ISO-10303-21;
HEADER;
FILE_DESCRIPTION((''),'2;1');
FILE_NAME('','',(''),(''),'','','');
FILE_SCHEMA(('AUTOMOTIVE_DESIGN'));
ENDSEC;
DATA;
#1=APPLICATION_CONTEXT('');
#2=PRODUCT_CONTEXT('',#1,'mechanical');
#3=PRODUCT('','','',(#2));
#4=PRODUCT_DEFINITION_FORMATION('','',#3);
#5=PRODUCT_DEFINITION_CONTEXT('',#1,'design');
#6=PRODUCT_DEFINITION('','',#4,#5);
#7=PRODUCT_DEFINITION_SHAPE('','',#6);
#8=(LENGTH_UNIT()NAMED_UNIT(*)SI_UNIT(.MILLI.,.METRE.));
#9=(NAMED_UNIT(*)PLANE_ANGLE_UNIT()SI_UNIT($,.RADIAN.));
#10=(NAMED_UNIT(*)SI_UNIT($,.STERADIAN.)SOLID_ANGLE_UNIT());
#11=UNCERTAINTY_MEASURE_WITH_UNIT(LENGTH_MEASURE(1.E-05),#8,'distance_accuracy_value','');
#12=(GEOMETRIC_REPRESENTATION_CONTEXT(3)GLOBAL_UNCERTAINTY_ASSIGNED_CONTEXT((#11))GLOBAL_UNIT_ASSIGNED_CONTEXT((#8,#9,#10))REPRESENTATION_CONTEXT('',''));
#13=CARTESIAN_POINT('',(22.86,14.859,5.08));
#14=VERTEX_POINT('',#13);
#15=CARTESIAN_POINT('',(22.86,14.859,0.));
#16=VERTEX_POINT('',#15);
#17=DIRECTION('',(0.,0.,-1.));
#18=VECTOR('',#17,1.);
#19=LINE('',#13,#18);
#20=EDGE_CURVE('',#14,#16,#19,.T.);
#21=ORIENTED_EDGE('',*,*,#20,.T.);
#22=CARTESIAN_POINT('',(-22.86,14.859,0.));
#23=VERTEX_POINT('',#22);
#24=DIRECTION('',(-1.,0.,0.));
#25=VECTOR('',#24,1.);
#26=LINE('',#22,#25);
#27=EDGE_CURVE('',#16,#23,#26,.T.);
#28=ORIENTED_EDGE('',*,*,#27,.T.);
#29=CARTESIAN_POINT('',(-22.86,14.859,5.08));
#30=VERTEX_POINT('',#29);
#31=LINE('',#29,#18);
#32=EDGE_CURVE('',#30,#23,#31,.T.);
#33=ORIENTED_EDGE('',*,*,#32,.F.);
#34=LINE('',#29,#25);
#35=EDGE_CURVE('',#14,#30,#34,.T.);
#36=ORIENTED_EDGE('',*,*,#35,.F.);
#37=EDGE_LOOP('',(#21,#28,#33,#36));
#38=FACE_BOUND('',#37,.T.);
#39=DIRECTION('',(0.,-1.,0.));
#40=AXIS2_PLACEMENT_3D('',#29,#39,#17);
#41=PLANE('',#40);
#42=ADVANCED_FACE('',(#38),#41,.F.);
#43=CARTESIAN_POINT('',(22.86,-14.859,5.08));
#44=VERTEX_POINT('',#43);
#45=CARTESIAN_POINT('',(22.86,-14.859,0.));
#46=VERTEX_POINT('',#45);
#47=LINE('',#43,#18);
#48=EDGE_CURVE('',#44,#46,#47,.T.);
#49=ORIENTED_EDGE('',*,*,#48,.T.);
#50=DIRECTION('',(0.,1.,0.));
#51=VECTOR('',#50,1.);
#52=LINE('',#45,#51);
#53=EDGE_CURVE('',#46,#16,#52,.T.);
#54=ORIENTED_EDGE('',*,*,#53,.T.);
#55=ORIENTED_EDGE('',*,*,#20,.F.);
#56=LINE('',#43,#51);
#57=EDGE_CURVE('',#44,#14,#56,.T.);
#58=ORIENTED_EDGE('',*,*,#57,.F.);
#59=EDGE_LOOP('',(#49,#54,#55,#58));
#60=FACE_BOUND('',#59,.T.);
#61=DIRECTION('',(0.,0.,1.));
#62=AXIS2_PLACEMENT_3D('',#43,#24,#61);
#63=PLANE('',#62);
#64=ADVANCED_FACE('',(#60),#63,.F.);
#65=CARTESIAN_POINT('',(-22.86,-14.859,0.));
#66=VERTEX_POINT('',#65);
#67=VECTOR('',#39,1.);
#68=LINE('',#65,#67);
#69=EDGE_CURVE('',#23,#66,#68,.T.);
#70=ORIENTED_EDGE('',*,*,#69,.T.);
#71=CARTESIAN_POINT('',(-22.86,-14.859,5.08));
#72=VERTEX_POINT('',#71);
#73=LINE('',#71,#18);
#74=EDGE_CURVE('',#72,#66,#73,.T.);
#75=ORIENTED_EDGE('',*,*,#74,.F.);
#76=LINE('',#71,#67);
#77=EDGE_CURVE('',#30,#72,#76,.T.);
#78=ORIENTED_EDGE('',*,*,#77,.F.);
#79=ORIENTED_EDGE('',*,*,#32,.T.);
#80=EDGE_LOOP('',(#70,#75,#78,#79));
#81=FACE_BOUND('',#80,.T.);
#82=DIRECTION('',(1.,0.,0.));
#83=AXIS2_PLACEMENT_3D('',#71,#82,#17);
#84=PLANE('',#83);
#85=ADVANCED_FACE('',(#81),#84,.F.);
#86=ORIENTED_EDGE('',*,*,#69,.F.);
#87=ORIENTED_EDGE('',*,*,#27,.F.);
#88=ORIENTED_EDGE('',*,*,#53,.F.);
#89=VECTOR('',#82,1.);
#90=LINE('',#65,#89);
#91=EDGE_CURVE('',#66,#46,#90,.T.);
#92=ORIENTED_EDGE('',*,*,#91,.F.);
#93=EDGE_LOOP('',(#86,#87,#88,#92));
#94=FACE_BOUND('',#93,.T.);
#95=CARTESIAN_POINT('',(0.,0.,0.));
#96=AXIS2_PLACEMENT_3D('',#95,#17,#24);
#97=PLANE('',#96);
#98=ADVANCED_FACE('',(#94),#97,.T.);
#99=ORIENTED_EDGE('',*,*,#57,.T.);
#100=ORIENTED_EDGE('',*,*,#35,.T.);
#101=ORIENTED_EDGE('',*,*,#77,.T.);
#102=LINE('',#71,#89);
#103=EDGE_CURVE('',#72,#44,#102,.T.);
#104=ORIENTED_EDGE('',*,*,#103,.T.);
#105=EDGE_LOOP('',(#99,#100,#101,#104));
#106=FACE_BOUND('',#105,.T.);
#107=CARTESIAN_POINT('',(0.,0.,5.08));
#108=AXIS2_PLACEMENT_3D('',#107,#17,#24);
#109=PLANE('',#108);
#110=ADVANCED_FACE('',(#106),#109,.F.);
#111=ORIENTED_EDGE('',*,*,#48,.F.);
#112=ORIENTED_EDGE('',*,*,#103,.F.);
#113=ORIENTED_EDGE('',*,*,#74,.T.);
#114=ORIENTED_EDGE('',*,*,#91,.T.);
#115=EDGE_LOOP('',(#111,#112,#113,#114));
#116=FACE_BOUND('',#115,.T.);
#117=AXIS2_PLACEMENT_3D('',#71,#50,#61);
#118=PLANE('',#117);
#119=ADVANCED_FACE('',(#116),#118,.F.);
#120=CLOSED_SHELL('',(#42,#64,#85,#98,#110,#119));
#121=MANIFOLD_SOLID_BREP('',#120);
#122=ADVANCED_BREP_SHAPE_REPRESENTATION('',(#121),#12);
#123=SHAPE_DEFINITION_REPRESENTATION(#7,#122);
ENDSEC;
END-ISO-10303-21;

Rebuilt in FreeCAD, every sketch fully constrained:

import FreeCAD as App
import Part
import Sketcher

V = App.Vector
Q = App.Units.Quantity

doc = App.newDocument("Part")
body = doc.addObject("PartDesign::Body", "Body")

# Sketch on XY plane
sketch1 = body.newObject("Sketcher::SketchObject", "Sketch")
sketch1.AttachmentSupport = (doc.getObject("XY_Plane"), [""])
sketch1.MapMode = "FlatFace"
sketch1.addGeometry([
    Part.LineSegment(V(-23, 15, 0), V(-23, -15, 0)),
    Part.LineSegment(V(-23, -15, 0), V(23, -15, 0)),
    Part.LineSegment(V(23, -15, 0), V(23, 15, 0)),
    Part.LineSegment(V(23, 15, 0), V(-23, 15, 0)),
], False)
sketch1.addConstraint([
    Sketcher.Constraint("Coincident", 0, 2, 1, 1),
    Sketcher.Constraint("Coincident", 1, 2, 2, 1),
    Sketcher.Constraint("Coincident", 2, 2, 3, 1),
    Sketcher.Constraint("Coincident", 3, 2, 0, 1),
    Sketcher.Constraint("Vertical", 0),
    Sketcher.Constraint("Horizontal", 1),
    Sketcher.Constraint("Vertical", 2),
    Sketcher.Constraint("Horizontal", 3),
    Sketcher.Constraint("Symmetric", 0, 2, 2, 2, -1, 1),
    Sketcher.Constraint("DistanceX", 1, 1, 1, 2, Q("1.8 in")),
    Sketcher.Constraint("DistanceY", 0, 2, 0, 1, Q("1.17 in")),
])
pad1 = body.newObject("PartDesign::Pad", "Pad")
pad1.Profile = sketch1
pad1.Length = Q("0.2 in")

doc.recompute()
